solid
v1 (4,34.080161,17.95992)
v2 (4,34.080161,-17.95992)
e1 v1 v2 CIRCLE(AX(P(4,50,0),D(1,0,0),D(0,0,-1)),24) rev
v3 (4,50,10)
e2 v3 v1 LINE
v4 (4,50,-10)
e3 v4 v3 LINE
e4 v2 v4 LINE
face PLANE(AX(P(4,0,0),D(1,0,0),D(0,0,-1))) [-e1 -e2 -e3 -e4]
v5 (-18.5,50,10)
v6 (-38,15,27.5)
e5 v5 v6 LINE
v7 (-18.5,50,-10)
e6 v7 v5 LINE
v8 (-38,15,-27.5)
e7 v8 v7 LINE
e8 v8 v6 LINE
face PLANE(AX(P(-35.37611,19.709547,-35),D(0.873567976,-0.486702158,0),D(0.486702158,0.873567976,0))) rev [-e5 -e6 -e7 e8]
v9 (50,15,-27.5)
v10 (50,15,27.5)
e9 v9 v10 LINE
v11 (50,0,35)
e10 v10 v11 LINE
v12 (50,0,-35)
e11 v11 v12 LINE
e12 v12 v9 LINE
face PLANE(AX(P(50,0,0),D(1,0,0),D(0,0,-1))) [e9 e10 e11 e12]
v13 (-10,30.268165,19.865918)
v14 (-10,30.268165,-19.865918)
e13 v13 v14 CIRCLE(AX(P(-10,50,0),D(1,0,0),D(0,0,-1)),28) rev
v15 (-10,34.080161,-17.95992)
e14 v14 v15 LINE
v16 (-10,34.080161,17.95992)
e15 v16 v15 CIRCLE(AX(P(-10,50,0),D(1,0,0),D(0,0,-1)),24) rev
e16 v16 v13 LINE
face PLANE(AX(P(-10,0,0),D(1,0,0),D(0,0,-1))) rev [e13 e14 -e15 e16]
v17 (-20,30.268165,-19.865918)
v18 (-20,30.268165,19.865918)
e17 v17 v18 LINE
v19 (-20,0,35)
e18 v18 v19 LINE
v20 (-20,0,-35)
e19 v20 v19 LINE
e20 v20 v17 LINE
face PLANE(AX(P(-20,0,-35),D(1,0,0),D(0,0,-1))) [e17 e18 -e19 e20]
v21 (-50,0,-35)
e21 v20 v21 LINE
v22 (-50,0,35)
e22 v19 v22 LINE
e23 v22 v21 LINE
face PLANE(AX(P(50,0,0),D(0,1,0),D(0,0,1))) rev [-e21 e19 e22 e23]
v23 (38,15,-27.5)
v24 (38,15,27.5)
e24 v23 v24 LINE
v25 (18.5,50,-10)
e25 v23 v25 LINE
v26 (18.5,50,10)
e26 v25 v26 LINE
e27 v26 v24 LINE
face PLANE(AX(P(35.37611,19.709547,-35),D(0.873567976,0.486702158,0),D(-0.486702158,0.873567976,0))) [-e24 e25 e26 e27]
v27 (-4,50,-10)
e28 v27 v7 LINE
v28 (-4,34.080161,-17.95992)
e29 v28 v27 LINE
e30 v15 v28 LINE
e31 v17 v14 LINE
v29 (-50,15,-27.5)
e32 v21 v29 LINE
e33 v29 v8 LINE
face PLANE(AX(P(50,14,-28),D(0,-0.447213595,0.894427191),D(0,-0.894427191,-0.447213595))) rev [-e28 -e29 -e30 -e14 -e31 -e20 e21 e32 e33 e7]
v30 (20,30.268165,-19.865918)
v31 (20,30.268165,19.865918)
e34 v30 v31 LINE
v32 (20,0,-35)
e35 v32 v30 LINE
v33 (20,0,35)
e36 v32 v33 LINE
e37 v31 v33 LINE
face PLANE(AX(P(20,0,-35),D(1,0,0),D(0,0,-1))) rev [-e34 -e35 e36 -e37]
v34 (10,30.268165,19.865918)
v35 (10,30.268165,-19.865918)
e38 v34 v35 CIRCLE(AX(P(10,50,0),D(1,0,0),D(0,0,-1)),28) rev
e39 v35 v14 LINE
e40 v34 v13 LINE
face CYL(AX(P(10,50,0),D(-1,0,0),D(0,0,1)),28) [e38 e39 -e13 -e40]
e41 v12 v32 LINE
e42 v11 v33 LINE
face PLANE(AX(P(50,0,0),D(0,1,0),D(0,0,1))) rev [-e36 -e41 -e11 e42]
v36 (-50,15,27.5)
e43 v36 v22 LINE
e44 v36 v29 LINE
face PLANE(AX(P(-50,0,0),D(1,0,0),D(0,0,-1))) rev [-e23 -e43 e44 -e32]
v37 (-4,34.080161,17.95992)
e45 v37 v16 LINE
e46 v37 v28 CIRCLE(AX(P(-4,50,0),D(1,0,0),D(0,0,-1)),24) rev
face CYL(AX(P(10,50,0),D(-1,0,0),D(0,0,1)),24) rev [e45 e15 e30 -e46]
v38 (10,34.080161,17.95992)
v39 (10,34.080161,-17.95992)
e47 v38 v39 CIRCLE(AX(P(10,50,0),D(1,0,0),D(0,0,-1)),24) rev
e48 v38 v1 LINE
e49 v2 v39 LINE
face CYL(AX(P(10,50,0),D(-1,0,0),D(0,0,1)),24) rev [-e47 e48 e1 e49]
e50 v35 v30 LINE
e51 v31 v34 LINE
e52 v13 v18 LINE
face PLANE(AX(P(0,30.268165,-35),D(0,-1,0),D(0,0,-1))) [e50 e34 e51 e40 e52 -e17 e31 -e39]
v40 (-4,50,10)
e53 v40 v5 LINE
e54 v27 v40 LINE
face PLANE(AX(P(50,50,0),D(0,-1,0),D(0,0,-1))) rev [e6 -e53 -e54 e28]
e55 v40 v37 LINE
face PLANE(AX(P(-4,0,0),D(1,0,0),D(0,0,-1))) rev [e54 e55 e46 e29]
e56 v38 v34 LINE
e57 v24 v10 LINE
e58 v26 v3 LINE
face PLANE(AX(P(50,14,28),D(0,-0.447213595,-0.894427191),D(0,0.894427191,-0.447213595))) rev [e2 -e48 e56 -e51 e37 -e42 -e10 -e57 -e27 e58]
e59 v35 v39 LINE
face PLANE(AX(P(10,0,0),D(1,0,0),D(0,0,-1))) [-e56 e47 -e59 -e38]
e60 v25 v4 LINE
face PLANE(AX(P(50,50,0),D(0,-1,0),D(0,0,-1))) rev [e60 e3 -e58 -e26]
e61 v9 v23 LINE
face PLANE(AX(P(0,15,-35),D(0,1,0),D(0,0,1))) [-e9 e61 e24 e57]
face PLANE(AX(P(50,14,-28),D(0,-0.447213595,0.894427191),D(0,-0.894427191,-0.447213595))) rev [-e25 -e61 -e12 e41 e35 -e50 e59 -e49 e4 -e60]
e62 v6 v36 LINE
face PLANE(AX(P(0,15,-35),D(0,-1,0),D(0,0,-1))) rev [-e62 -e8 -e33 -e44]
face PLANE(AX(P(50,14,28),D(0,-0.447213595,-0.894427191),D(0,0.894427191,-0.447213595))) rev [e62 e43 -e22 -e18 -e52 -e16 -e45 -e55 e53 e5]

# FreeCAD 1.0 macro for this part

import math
import FreeCAD as App
import Part
import Sketcher
Q = App.Units.Quantity


def add_polygon(sketch, points):
    """Adds a closed chain of lines whose ends are joined by coincident constraints."""
    first, n = sketch.GeometryCount, len(points)
    for a, b in zip(points, points[1:] + points[:1]):
        sketch.addGeometry(Part.LineSegment(App.Vector(*a, 0), App.Vector(*b, 0)), False)
    for i in range(n):
        sketch.addConstraint(Sketcher.Constraint("Coincident", first + i, 2, first + (i + 1) % n, 1))

doc = App.newDocument("Part")
body = doc.addObject("PartDesign::Body", "Body")

# Sketch on YZ plane
sketch1 = doc.addObject("Sketcher::SketchObject", "Sketch")
body.addObject(sketch1)
sketch1.AttachmentSupport = (doc.YZ_Plane, [""])
sketch1.MapMode = "FlatFace"
add_polygon(sketch1, [(0, 35), (0, -35), (50, -10), (50, 10)])  # lines 0-3
sketch1.addConstraint(Sketcher.Constraint("Vertical", 0))
sketch1.addConstraint(Sketcher.Constraint("Vertical", 2))
sketch1.addConstraint(Sketcher.Constraint("Symmetric", 0, 2, 3, 2, -1, 1))
sketch1.addConstraint(Sketcher.Constraint("Equal", 1, 3))
sketch1.addConstraint(Sketcher.Constraint("DistanceY", 0, 2, 0, 1, Q("70 mm")))
sketch1.addConstraint(Sketcher.Constraint("DistanceY", 2, 1, 2, 2, Q("20 mm")))
sketch1.addConstraint(Sketcher.Constraint("DistanceX", -1, 1, 1, 2, Q("50 mm")))
pad1 = doc.addObject("PartDesign::Pad", "Pad")
body.addObject(pad1)
pad1.Profile = sketch1
pad1.Length = 100
pad1.Midplane = True

# Sketch on YZ plane
sketch2 = doc.addObject("Sketcher::SketchObject", "Sketch001")
body.addObject(sketch2)
sketch2.AttachmentSupport = (doc.YZ_Plane, [""])
sketch2.MapMode = "FlatFace"
sketch2.addGeometry(Part.ArcOfCircle(Part.Circle(App.Vector(50, 0, 0), App.Vector(0, 0, 1), 28), math.radians(-135), math.radians(135)), False)
sketch2.addGeometry(Part.LineSegment(App.Vector(30.3, 19.9, 0), App.Vector(34.1, 18, 0)), False)
sketch2.addGeometry(Part.ArcOfCircle(Part.Circle(App.Vector(50, 0, 0), App.Vector(0, 0, 1), 24), math.radians(-132), math.radians(132)), False)
sketch2.addGeometry(Part.LineSegment(App.Vector(34.1, -18, 0), App.Vector(30.3, -19.9, 0)), False)
sketch2.addConstraint(Sketcher.Constraint("Coincident", 0, 2, 1, 1))
sketch2.addConstraint(Sketcher.Constraint("Coincident", 1, 2, 2, 2))
sketch2.addConstraint(Sketcher.Constraint("Coincident", 2, 1, 3, 1))
sketch2.addConstraint(Sketcher.Constraint("Coincident", 3, 2, 0, 1))
sketch2.addConstraint(Sketcher.Constraint("Coincident", 2, 3, 0, 3))
sketch2.addConstraint(Sketcher.Constraint("Symmetric", 1, 2, 2, 1, -1))
sketch2.addConstraint(Sketcher.Constraint("Vertical", 0, 2, 3, 2))
sketch2.addConstraint(Sketcher.Constraint("Radius", 0, Q("28 mm")))
sketch2.addConstraint(Sketcher.Constraint("Radius", 2, Q("24 mm")))
sketch2.addConstraint(Sketcher.Constraint("DistanceX", -1, 1, 0, 3, Q("50 mm")))
sketch2.addConstraint(Sketcher.Constraint("Distance", 1, Q("4.261941 mm")))
sketch2.addConstraint(Sketcher.Constraint("DistanceX", -1, 1, 1, 2, Q("34.080161 mm")))
pad2 = doc.addObject("PartDesign::Pad", "Pad001")
body.addObject(pad2)
pad2.Profile = sketch2
pad2.Length = 20
pad2.Midplane = True

# Sketch on YZ plane
sketch3 = doc.addObject("Sketcher::SketchObject", "Sketch002")
body.addObject(sketch3)
sketch3.AttachmentSupport = (doc.YZ_Plane, [""])
sketch3.MapMode = "FlatFace"
sketch3.addGeometry(Part.LineSegment(App.Vector(30, 20, 0), App.Vector(0, 35, 0)), False)
sketch3.addGeometry(Part.LineSegment(App.Vector(0, 35, 0), App.Vector(0, -35, 0)), False)
sketch3.addGeometry(Part.LineSegment(App.Vector(0, -35, 0), App.Vector(30, -20, 0)), False)
sketch3.addGeometry(Part.ArcOfCircle(Part.Circle(App.Vector(50, 0, 0), App.Vector(0, 0, 1), 28), math.radians(-135), math.radians(135)), False)
sketch3.addConstraint(Sketcher.Constraint("Coincident", 0, 2, 1, 1))
sketch3.addConstraint(Sketcher.Constraint("Coincident", 1, 2, 2, 1))
sketch3.addConstraint(Sketcher.Constraint("Coincident", 2, 2, 3, 1))
sketch3.addConstraint(Sketcher.Constraint("Coincident", 3, 2, 0, 1))
sketch3.addConstraint(Sketcher.Constraint("Vertical", 1))
sketch3.addConstraint(Sketcher.Constraint("Symmetric", 0, 2, 1, 2, -1, 1))
sketch3.addConstraint(Sketcher.Constraint("Symmetric", 2, 2, 3, 2, -1))
sketch3.addConstraint(Sketcher.Constraint("Radius", 3, Q("28 mm")))
sketch3.addConstraint(Sketcher.Constraint("DistanceY", 1, 2, 1, 1, Q("70 mm")))
sketch3.addConstraint(Sketcher.Constraint("DistanceX", -1, 1, 3, 3, Q("50 mm")))
sketch3.addConstraint(Sketcher.Constraint("Distance", 0, Q("33.840837 mm")))
pad3 = doc.addObject("PartDesign::Pad", "Pad002")
body.addObject(pad3)
pad3.Profile = sketch3
pad3.Length = 8
pad3.Midplane = True

# Sketch on XY plane
sketch4 = doc.addObject("Sketcher::SketchObject", "Sketch003")
body.addObject(sketch4)
sketch4.AttachmentSupport = (doc.XY_Plane, [""])
sketch4.MapMode = "FlatFace"
add_polygon(sketch4, [(38, 15), (50, 15), (50, 50), (18, 50)])  # lines 0-3
add_polygon(sketch4, [(-20, 30), (-20, 0), (20, 0), (20, 30)])  # lines 4-7
add_polygon(sketch4, [(-38, 15), (-18, 50), (-50, 50), (-50, 15)])  # lines 8-11
sketch4.addConstraint(Sketcher.Constraint("Horizontal", 0))
sketch4.addConstraint(Sketcher.Constraint("Vertical", 1))
sketch4.addConstraint(Sketcher.Constraint("Horizontal", 2))
sketch4.addConstraint(Sketcher.Constraint("Vertical", 4))
sketch4.addConstraint(Sketcher.Constraint("Horizontal", 5))
sketch4.addConstraint(Sketcher.Constraint("Vertical", 6))
sketch4.addConstraint(Sketcher.Constraint("Horizontal", 7))
sketch4.addConstraint(Sketcher.Constraint("Horizontal", 9))
sketch4.addConstraint(Sketcher.Constraint("Vertical", 10))
sketch4.addConstraint(Sketcher.Constraint("Horizontal", 11))
sketch4.addConstraint(Sketcher.Constraint("Symmetric", 4, 2, 5, 2, -1, 1))
sketch4.addConstraint(Sketcher.Constraint("Symmetric", 2, 2, 8, 2, -2))
sketch4.addConstraint(Sketcher.Constraint("Symmetric", 0, 2, 10, 2, -2))
sketch4.addConstraint(Sketcher.Constraint("Equal", 0, 11))
sketch4.addConstraint(Sketcher.Constraint("DistanceX", 0, 1, 0, 2, Q("12 mm")))
sketch4.addConstraint(Sketcher.Constraint("DistanceX", 5, 1, 5, 2, Q("40 mm")))
sketch4.addConstraint(Sketcher.Constraint("DistanceY", 1, 1, 1, 2, Q("35 mm")))
sketch4.addConstraint(Sketcher.Constraint("DistanceX", 2, 2, 2, 1, Q("31.5 mm")))
sketch4.addConstraint(Sketcher.Constraint("DistanceX", -1, 1, 0, 2, Q("50 mm")))
sketch4.addConstraint(Sketcher.Constraint("DistanceY", -1, 1, 0, 2, Q("15 mm")))
sketch4.addConstraint(Sketcher.Constraint("DistanceY", 4, 2, 4, 1, Q("30.268165 mm")))
pocket1 = doc.addObject("PartDesign::Pocket", "Pocket")
body.addObject(pocket1)
pocket1.Profile = sketch4
pocket1.Type = "ThroughAll"
pocket1.Midplane = True

doc.recompute()
